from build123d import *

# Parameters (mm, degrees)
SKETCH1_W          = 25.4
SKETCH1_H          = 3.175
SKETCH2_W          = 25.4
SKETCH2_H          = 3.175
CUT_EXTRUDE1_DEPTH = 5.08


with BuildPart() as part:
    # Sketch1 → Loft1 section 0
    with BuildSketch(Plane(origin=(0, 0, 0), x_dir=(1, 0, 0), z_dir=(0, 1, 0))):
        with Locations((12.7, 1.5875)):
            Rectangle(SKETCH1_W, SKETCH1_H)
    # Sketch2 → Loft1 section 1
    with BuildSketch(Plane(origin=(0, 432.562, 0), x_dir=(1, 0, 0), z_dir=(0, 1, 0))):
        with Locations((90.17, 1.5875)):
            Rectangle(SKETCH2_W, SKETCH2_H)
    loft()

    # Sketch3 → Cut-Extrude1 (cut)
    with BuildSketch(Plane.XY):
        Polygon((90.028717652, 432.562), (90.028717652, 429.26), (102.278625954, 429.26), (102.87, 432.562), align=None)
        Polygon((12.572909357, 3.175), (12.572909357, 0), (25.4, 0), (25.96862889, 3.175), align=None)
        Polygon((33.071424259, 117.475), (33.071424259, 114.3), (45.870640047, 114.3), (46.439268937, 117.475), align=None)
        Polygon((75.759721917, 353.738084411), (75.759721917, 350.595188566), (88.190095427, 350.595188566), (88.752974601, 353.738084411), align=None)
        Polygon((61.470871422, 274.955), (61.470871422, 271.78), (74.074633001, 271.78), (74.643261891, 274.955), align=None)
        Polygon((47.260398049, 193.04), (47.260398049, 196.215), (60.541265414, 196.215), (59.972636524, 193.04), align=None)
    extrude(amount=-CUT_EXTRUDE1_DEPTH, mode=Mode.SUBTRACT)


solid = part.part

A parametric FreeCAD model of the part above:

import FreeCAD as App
import Part
import Sketcher

V = App.Vector
Q = App.Units.Quantity

doc = App.newDocument("Part")
body = doc.addObject("PartDesign::Body", "Body")

sketch1 = body.newObject("Sketcher::SketchObject", "Sketch")
sketch1.AttachmentSupport = (doc.getObject("XZ_Plane"), [""])
sketch1.MapMode = "FlatFace"
sketch1.addGeometry([
    Part.LineSegment(V(0, -3.2, 0), V(0, 0, 0)),
    Part.LineSegment(V(0, 0, 0), V(25.4, 0, 0)),
    Part.LineSegment(V(25.4, 0, 0), V(25.4, -3.2, 0)),
    Part.LineSegment(V(25.4, -3.2, 0), V(0, -3.2, 0)),
], False)
sketch1.addConstraint([
    Sketcher.Constraint("Coincident", 0, 2, 1, 1),
    Sketcher.Constraint("Coincident", 1, 2, 2, 1),
    Sketcher.Constraint("Coincident", 2, 2, 3, 1),
    Sketcher.Constraint("Coincident", 3, 2, 0, 1),
    Sketcher.Constraint("Vertical", 0),
    Sketcher.Constraint("Horizontal", 1),
    Sketcher.Constraint("Vertical", 2),
    Sketcher.Constraint("Horizontal", 3),
    Sketcher.Constraint("Coincident", 0, 2, -1, 1),
    Sketcher.Constraint("DistanceX", 1, 1, 1, 2, Q("1 in")),
    Sketcher.Constraint("DistanceY", 0, 1, 0, 2, Q("0.125 in")),
])

sketch2 = body.newObject("Sketcher::SketchObject", "Sketch001")
sketch2.AttachmentSupport = (doc.getObject("XZ_Plane"), [""])
sketch2.MapMode = "FlatFace"
sketch2.AttachmentOffset = App.Placement(V(0, 0, -17.03 * 25.4), App.Rotation())
sketch2.addGeometry([
    Part.LineSegment(V(77.5, -3.2, 0), V(77.5, 0, 0)),
    Part.LineSegment(V(77.5, 0, 0), V(102.9, 0, 0)),
    Part.LineSegment(V(102.9, 0, 0), V(102.9, -3.2, 0)),
    Part.LineSegment(V(102.9, -3.2, 0), V(77.5, -3.2, 0)),
], False)
sketch2.addConstraint([
    Sketcher.Constraint("Coincident", 0, 2, 1, 1),
    Sketcher.Constraint("Coincident", 1, 2, 2, 1),
    Sketcher.Constraint("Coincident", 2, 2, 3, 1),
    Sketcher.Constraint("Coincident", 3, 2, 0, 1),
    Sketcher.Constraint("Vertical", 0),
    Sketcher.Constraint("Horizontal", 1),
    Sketcher.Constraint("Vertical", 2),
    Sketcher.Constraint("Horizontal", 3),
    Sketcher.Constraint("PointOnObject", 0, 2, -1),
    Sketcher.Constraint("DistanceX", 1, 1, 1, 2, Q("1 in")),
    Sketcher.Constraint("DistanceY", 0, 1, 0, 2, Q("0.125 in")),
    Sketcher.Constraint("DistanceX", -1, 1, 0, 2, Q("3.05 in")),
])

additiveloft = body.newObject("PartDesign::AdditiveLoft", "AdditiveLoft")
additiveloft.Profile = sketch1
additiveloft.Sections = [sketch2]

sketch3 = body.newObject("Sketcher::SketchObject", "Sketch002")
sketch3.AttachmentSupport = (doc.getObject("XY_Plane"), [""])
sketch3.MapMode = "FlatFace"
sketch3.addGeometry([
    Part.LineSegment(V(90, 432.6, 0), V(90, 429.3, 0)),
    Part.LineSegment(V(90, 429.3, 0), V(102.3, 429.3, 0)),
    Part.LineSegment(V(102.3, 429.3, 0), V(102.9, 432.6, 0)),
    Part.LineSegment(V(102.9, 432.6, 0), V(90, 432.6, 0)),
    Part.LineSegment(V(12.6, 3.2, 0), V(12.6, 0, 0)),
    Part.LineSegment(V(12.6, 0, 0), V(25.4, 0, 0)),
    Part.LineSegment(V(25.4, 0, 0), V(26, 3.2, 0)),
    Part.LineSegment(V(26, 3.2, 0), V(12.6, 3.2, 0)),
    Part.LineSegment(V(33.1, 117.5, 0), V(33.1, 114.3, 0)),
    Part.LineSegment(V(33.1, 114.3, 0), V(45.9, 114.3, 0)),
    Part.LineSegment(V(45.9, 114.3, 0), V(46.4, 117.5, 0)),
    Part.LineSegment(V(46.4, 117.5, 0), V(33.1, 117.5, 0)),
    Part.LineSegment(V(75.8, 353.7, 0), V(75.8, 350.6, 0)),
    Part.LineSegment(V(75.8, 350.6, 0), V(88.2, 350.6, 0)),
    Part.LineSegment(V(88.2, 350.6, 0), V(88.8, 353.7, 0)),
    Part.LineSegment(V(88.8, 353.7, 0), V(75.8, 353.7, 0)),
    Part.LineSegment(V(61.5, 275, 0), V(61.5, 271.8, 0)),
    Part.LineSegment(V(61.5, 271.8, 0), V(74.1, 271.8, 0)),
    Part.LineSegment(V(74.1, 271.8, 0), V(74.6, 275, 0)),
    Part.LineSegment(V(74.6, 275, 0), V(61.5, 275, 0)),
    Part.LineSegment(V(47.3, 196.2, 0), V(47.3, 193, 0)),
    Part.LineSegment(V(47.3, 193, 0), V(60, 193, 0)),
    Part.LineSegment(V(60, 193, 0), V(60.5, 196.2, 0)),
    Part.LineSegment(V(60.5, 196.2, 0), V(47.3, 196.2, 0)),
], False)
sketch3.addConstraint([
    Sketcher.Constraint("Coincident", 0, 2, 1, 1),
    Sketcher.Constraint("Coincident", 1, 2, 2, 1),
    Sketcher.Constraint("Coincident", 2, 2, 3, 1),
    Sketcher.Constraint("Coincident", 3, 2, 0, 1),
    Sketcher.Constraint("Coincident", 4, 2, 5, 1),
    Sketcher.Constraint("Coincident", 5, 2, 6, 1),
    Sketcher.Constraint("Coincident", 6, 2, 7, 1),
    Sketcher.Constraint("Coincident", 7, 2, 4, 1),
    Sketcher.Constraint("Coincident", 8, 2, 9, 1),
    Sketcher.Constraint("Coincident", 9, 2, 10, 1),
    Sketcher.Constraint("Coincident", 10, 2, 11, 1),
    Sketcher.Constraint("Coincident", 11, 2, 8, 1),
    Sketcher.Constraint("Coincident", 12, 2, 13, 1),
    Sketcher.Constraint("Coincident", 13, 2, 14, 1),
    Sketcher.Constraint("Coincident", 14, 2, 15, 1),
    Sketcher.Constraint("Coincident", 15, 2, 12, 1),
    Sketcher.Constraint("Coincident", 16, 2, 17, 1),
    Sketcher.Constraint("Coincident", 17, 2, 18, 1),
    Sketcher.Constraint("Coincident", 18, 2, 19, 1),
    Sketcher.Constraint("Coincident", 19, 2, 16, 1),
    Sketcher.Constraint("Coincident", 20, 2, 21, 1),
    Sketcher.Constraint("Coincident", 21, 2, 22, 1),
    Sketcher.Constraint("Coincident", 22, 2, 23, 1),
    Sketcher.Constraint("Coincident", 23, 2, 20, 1),
    Sketcher.Constraint("Vertical", 0),
    Sketcher.Constraint("Horizontal", 1),
    Sketcher.Constraint("Horizontal", 3),
    Sketcher.Constraint("Vertical", 4),
    Sketcher.Constraint("Horizontal", 5),
    Sketcher.Constraint("Horizontal", 7),
    Sketcher.Constraint("Vertical", 8),
    Sketcher.Constraint("Horizontal", 9),
    Sketcher.Constraint("Horizontal", 11),
    Sketcher.Constraint("Vertical", 12),
    Sketcher.Constraint("Horizontal", 13),
    Sketcher.Constraint("Horizontal", 15),
    Sketcher.Constraint("Vertical", 16),
    Sketcher.Constraint("Horizontal", 17),
    Sketcher.Constraint("Horizontal", 19),
    Sketcher.Constraint("Vertical", 20),
    Sketcher.Constraint("Horizontal", 21),
    Sketcher.Constraint("Horizontal", 23),
    Sketcher.Constraint("PointOnObject", 4, 2, -1),
    Sketcher.Constraint("Parallel", 2, 6),
    Sketcher.Constraint("Parallel", 6, 10),
    Sketcher.Constraint("Parallel", 10, 14),
    Sketcher.Constraint("Parallel", 14, 18),
    Sketcher.Constraint("Parallel", 18, 22),
    Sketcher.Constraint("Equal", 4, 8),
    Sketcher.Constraint("Equal", 8, 16),
    Sketcher.Constraint("Equal", 16, 20),
    Sketcher.Constraint("DistanceX", -1, 1, 5, 2, Q("1 in")),
    Sketcher.Constraint("DistanceY", 0, 2, 0, 1, Q("0.13 in")),
    Sketcher.Constraint("DistanceY", -1, 1, 0, 2, Q("16.9 in")),
    Sketcher.Constraint("DistanceY", -1, 1, 8, 2, Q("4.5 in")),
    Sketcher.Constraint("DistanceY", -1, 1, 16, 2, Q("10.7 in")),
    Sketcher.Constraint("DistanceY", -1, 1, 20, 2, Q("7.6 in")),
    Sketcher.Constraint("DistanceY", 4, 2, 4, 1, Q("0.125 in")),
    Sketcher.Constraint("DistanceX", -1, 1, 2, 2, Q("4.05 in")),
    Sketcher.Constraint("DistanceX", 1, 1, 1, 2, 12.249908),
    Sketcher.Constraint("DistanceX", 5, 1, 5, 2, 12.827091),
    Sketcher.Constraint("DistanceX", 7, 2, 7, 1, 13.39572),
    Sketcher.Constraint("DistanceX", 17, 1, 17, 2, 12.603762),
    Sketcher.Constraint("DistanceX", 21, 1, 21, 2, 12.712238),
    Sketcher.Constraint("DistanceX", -1, 1, 20, 2, 47.260398),
    Sketcher.Constraint("DistanceX", 9, 1, 9, 2, 12.799216),
    Sketcher.Constraint("DistanceX", 13, 1, 13, 2, 12.430374),
    Sketcher.Constraint("DistanceX", 15, 2, 15, 1, 12.993253),
    Sketcher.Constraint("DistanceX", -1, 1, 9, 2, 45.87064),
    Sketcher.Constraint("DistanceX", -1, 1, 12, 2, 75.759722),
    Sketcher.Constraint("DistanceY", -1, 1, 12, 2, 350.595189),
    Sketcher.Constraint("DistanceX", -1, 1, 16, 2, 61.470871),
])
pocket1 = body.newObject("PartDesign::Pocket", "Pocket")
pocket1.Profile = sketch3
pocket1.Length = Q("0.2 in")

doc.recompute()
